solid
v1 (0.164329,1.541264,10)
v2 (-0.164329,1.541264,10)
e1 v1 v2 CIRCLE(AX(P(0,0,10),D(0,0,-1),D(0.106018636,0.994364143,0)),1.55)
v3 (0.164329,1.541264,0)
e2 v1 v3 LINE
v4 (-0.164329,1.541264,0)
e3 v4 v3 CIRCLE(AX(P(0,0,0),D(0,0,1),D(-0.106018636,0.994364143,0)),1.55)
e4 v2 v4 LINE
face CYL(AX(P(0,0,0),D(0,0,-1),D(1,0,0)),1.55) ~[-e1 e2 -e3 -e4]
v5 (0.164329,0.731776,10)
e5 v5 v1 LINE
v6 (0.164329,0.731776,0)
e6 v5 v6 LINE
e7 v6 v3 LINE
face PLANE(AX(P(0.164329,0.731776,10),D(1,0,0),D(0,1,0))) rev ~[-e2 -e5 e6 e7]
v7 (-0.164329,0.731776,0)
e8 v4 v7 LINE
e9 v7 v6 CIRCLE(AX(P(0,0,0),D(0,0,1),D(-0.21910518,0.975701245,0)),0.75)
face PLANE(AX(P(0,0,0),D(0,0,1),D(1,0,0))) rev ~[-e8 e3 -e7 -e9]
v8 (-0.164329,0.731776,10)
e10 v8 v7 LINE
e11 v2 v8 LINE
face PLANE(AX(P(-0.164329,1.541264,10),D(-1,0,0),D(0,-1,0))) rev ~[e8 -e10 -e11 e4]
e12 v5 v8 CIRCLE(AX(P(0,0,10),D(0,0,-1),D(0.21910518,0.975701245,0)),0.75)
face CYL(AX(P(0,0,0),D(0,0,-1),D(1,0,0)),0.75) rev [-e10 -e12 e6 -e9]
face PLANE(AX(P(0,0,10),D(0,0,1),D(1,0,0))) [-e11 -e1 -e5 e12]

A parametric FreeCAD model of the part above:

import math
import FreeCAD as App
import Part
import Sketcher
from FreeCAD import Vector

doc = App.newDocument("Part")
body = doc.addObject("PartDesign::Body", "Body")

# Sketch on XY plane
sketch1 = body.newObject("Sketcher::SketchObject", "Sketch")
sketch1.AttachmentSupport = (doc.getObject("XY_Plane"), [""])
sketch1.MapMode = "FlatFace"
sketch1.addGeometry([
    Part.Circle(Vector(0, 0, 0), Vector(0, 0, 1), 1.6),
    Part.Circle(Vector(0, 0, 0), Vector(0, 0, 1), 0.8),
], False)
sketch1.addConstraint([
    Sketcher.Constraint("Coincident", 0, 3, -1, 1),
    Sketcher.Constraint("Coincident", 1, 3, -1, 1),
    Sketcher.Constraint("Diameter", 0, 3.1),
    Sketcher.Constraint("Diameter", 1, 1.5),
])
pad1 = body.newObject("PartDesign::Pad", "Pad")
pad1.Profile = sketch1
pad1.Length = 10

# Sketch on XY plane
sketch2 = body.newObject("Sketcher::SketchObject", "Sketch001")
sketch2.AttachmentSupport = (doc.getObject("XY_Plane"), [""])
sketch2.MapMode = "FlatFace"
sketch2.AttachmentOffset = App.Placement(Vector(0, 0, 10), App.Rotation())
sketch2.addGeometry([
    Part.LineSegment(Vector(0.16, 0.73, 0), Vector(0.16, 1.54, 0)),
    Part.ArcOfCircle(Part.Circle(Vector(0, 0, 0), Vector(0, 0, 1), 1.55), math.radians(83.91), math.radians(96.09)),
    Part.LineSegment(Vector(-0.16, 1.54, 0), Vector(-0.16, 0.73, 0)),
    Part.ArcOfCircle(Part.Circle(Vector(0, 0, 0), Vector(0, 0, 1), 0.75), math.radians(77), math.radians(103)),
], False)
sketch2.addConstraint([
    Sketcher.Constraint("Coincident", 0, 2, 1, 1),
    Sketcher.Constraint("Coincident", 1, 2, 2, 1),
    Sketcher.Constraint("Coincident", 2, 2, 3, 2),
    Sketcher.Constraint("Coincident", 3, 1, 0, 1),
    Sketcher.Constraint("Vertical", 0),
    Sketcher.Constraint("Vertical", 2),
    Sketcher.Constraint("Coincident", 1, 3, -1, 1),
    Sketcher.Constraint("Coincident", 3, 3, -1, 1),
    Sketcher.Constraint("Horizontal", 0, 2, 1, 2),
    Sketcher.Constraint("Radius", 1, 1.55),
    Sketcher.Constraint("Radius", 3, 0.75),
    Sketcher.Constraint("DistanceY", 0, 1, 0, 2, 0.809488),
])
pocket1 = body.newObject("PartDesign::Pocket", "Pocket")
pocket1.Profile = sketch2
pocket1.Length = 10

doc.recompute()
